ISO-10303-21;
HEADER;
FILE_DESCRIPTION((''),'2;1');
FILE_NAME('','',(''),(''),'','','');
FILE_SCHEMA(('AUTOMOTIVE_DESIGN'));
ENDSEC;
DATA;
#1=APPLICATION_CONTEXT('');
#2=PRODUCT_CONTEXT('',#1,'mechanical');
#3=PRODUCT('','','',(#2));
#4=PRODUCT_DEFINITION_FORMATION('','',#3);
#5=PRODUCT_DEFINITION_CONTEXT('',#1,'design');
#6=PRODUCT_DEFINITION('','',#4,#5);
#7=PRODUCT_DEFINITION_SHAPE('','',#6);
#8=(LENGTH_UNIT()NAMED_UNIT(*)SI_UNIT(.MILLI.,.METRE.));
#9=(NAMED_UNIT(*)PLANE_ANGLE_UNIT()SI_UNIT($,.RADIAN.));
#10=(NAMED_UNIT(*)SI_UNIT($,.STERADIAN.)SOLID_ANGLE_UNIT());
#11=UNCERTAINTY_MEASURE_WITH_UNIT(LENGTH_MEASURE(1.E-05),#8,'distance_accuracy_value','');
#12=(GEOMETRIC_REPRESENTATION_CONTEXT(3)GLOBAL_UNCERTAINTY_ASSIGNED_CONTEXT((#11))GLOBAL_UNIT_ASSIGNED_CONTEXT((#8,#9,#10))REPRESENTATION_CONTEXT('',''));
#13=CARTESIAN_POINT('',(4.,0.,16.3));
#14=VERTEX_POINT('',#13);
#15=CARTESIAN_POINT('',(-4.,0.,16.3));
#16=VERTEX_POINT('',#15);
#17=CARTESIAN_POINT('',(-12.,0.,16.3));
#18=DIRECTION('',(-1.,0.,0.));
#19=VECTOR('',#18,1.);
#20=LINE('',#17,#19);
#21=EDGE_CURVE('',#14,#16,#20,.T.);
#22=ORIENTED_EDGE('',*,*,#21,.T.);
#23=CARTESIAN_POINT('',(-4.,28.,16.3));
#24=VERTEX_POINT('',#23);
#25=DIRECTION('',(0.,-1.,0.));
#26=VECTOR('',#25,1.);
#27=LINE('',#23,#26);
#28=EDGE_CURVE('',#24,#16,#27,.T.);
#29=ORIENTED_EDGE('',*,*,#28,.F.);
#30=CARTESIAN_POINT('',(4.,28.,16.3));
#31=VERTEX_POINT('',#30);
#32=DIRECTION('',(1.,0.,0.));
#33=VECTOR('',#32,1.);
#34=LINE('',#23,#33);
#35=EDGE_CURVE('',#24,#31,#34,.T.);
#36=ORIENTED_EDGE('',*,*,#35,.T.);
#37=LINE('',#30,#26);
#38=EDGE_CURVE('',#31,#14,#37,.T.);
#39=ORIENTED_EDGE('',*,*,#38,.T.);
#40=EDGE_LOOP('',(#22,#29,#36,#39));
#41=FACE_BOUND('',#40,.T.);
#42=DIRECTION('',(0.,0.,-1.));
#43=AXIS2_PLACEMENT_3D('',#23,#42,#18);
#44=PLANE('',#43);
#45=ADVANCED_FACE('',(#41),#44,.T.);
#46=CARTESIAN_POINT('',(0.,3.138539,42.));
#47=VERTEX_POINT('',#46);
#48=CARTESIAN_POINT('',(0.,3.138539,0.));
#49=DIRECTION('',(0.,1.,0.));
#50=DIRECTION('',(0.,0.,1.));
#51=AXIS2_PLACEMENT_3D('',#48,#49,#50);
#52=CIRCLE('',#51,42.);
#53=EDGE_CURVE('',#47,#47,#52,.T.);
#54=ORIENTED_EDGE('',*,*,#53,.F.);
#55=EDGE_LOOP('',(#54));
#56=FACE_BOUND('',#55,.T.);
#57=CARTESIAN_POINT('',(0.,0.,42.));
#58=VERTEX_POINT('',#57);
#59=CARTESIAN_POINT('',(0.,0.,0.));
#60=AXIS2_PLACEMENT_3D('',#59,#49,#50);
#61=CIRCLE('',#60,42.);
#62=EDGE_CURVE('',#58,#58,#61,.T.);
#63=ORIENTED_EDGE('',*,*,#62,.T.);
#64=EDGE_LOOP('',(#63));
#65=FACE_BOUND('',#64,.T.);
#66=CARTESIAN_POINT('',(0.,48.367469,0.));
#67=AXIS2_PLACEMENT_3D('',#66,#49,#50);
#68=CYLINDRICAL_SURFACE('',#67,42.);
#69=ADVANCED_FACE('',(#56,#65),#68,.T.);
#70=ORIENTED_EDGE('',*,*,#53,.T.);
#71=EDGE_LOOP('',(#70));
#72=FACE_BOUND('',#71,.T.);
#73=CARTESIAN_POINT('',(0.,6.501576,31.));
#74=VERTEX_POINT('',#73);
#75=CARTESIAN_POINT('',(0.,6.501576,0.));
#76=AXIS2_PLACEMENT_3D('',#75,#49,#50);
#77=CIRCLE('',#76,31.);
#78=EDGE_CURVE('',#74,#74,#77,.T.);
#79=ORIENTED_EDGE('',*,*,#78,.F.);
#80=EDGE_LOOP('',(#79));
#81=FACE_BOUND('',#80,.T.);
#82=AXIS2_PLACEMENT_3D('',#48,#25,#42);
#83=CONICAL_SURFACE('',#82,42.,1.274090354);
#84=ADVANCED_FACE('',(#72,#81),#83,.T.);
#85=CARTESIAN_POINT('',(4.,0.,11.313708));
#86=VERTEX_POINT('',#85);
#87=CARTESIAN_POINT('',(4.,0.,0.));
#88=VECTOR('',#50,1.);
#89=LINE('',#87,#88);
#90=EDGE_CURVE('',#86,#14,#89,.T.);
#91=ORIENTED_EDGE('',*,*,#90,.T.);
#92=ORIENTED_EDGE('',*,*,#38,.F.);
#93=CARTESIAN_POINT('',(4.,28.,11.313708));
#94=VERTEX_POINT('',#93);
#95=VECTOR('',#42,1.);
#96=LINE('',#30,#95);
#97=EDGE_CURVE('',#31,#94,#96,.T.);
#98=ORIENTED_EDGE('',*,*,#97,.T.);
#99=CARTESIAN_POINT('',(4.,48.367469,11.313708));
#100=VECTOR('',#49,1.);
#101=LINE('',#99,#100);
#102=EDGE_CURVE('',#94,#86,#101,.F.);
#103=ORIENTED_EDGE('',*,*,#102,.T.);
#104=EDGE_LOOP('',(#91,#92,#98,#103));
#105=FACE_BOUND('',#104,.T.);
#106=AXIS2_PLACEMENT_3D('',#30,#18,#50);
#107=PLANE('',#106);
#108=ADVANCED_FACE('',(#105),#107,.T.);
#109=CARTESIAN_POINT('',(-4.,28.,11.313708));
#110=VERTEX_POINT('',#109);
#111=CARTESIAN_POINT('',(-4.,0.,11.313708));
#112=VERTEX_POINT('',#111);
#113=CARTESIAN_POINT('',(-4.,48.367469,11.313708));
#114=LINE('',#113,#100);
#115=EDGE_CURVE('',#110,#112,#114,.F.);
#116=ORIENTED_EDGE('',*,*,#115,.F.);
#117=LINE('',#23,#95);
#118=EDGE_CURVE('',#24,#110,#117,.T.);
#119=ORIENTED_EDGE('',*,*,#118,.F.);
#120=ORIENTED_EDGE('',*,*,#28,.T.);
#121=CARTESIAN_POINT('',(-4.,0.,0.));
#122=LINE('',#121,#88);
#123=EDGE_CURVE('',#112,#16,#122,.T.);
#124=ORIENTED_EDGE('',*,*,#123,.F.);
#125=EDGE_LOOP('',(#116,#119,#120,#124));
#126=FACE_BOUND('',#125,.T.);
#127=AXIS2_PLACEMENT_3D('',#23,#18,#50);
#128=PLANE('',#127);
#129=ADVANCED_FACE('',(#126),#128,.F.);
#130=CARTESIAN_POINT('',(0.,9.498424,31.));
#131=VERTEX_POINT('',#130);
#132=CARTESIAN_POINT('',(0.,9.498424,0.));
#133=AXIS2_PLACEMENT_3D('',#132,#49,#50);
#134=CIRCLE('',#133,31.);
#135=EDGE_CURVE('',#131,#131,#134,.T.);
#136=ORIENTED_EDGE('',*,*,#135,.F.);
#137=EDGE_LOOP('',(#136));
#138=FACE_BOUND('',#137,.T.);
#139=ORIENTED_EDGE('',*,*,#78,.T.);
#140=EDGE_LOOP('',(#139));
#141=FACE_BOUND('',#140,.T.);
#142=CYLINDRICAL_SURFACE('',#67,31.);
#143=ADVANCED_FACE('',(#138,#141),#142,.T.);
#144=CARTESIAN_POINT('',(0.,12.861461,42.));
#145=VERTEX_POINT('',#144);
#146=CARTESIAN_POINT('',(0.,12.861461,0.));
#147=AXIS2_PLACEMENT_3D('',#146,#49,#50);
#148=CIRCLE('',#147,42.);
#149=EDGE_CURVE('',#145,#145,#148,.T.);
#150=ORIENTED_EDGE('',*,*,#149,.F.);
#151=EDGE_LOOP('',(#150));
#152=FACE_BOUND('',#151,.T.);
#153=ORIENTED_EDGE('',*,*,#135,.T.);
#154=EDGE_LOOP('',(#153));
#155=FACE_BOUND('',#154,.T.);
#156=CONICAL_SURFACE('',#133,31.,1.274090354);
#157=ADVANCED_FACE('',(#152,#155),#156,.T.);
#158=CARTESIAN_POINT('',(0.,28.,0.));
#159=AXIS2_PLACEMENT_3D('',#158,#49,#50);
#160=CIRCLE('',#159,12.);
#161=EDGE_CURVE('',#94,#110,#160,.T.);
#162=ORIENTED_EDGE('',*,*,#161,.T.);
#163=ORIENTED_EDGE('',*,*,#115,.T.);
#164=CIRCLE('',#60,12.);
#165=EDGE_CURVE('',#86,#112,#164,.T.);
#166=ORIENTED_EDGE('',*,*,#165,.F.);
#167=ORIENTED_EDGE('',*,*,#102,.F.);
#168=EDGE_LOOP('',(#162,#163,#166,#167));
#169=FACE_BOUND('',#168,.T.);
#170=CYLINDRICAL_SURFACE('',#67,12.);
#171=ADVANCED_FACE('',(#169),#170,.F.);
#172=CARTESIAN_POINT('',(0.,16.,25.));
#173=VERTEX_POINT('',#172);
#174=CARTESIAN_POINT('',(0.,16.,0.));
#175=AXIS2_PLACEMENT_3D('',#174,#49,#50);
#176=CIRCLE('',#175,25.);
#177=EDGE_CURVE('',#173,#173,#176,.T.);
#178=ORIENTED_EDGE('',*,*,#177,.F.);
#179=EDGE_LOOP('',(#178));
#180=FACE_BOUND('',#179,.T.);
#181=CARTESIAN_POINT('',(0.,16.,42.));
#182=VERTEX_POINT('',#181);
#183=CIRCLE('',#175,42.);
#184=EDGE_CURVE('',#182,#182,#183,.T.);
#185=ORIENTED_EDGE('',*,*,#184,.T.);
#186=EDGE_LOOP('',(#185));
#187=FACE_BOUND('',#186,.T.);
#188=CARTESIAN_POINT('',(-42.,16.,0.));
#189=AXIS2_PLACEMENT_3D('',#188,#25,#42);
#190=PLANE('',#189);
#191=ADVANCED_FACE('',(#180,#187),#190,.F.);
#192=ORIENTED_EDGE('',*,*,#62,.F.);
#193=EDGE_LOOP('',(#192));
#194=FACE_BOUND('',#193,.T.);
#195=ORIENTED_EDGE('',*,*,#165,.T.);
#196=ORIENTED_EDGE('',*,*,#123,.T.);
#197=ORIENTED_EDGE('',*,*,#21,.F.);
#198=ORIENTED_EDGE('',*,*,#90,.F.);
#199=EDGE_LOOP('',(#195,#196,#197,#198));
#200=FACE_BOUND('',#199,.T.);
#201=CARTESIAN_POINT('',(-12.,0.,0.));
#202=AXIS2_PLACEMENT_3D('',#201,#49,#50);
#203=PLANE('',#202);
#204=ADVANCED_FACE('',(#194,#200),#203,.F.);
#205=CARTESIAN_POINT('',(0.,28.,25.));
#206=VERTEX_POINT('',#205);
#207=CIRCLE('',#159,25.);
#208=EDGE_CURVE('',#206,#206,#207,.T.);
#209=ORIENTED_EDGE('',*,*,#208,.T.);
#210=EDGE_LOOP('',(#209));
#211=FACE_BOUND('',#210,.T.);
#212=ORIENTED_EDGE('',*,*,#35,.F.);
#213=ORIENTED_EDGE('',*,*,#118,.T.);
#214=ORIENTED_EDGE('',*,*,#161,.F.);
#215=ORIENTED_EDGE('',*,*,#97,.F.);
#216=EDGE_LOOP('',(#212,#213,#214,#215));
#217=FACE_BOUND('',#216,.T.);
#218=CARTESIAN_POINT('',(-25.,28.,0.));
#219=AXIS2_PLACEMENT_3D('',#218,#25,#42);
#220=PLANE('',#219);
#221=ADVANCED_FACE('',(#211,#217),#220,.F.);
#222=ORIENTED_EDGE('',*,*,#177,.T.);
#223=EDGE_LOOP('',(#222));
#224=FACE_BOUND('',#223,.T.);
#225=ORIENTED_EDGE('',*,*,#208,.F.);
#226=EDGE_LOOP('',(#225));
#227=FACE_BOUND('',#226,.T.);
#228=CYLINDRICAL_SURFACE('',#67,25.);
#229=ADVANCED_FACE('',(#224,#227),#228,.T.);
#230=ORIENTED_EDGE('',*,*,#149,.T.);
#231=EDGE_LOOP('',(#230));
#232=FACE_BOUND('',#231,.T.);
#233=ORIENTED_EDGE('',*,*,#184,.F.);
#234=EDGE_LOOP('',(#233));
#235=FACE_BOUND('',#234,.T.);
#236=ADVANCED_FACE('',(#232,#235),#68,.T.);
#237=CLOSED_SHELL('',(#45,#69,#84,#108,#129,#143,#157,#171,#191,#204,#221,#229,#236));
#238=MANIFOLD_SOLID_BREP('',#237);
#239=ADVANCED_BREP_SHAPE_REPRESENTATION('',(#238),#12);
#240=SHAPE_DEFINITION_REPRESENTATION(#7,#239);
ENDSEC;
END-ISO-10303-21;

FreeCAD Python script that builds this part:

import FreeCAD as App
import Part
import Sketcher

V = App.Vector
Q = App.Units.Quantity


def add_polygon(sketch, points):
    """Adds a closed chain of lines whose ends are joined by coincident constraints."""
    first, n = sketch.GeometryCount, len(points)
    for a, b in zip(points, points[1:] + points[:1]):
        sketch.addGeometry(Part.LineSegment(App.Vector(*a, 0), App.Vector(*b, 0)), False)
    for i in range(n):
        sketch.addConstraint(Sketcher.Constraint("Coincident", first + i, 2, first + (i + 1) % n, 1))

doc = App.newDocument("Part")
params = doc.addObject("Spreadsheet::Sheet", "Params")
for row, (alias, value) in enumerate([
    ("sketch1_width", "30 mm"),
    ("sketch1_width2", "13 mm"),
    ("sketch1_height", "28 mm"),
    ("sketch1_height2", "12 mm"),
    ("revolution_angle", "360 deg"),
    ("sketch2_width", "8 mm"),
    ("sketch2_height", "16.3 mm"),
], start=1):
    params.set(f"A{row}", alias)
    params.set(f"B{row}", "=" + value)
    params.setAlias(f"B{row}", alias)

body = doc.addObject("PartDesign::Body", "Body")

sketch1 = body.newObject("Sketcher::SketchObject", "Sketch")
sketch1.AttachmentSupport = (doc.getObject("XY_Plane"), [""])
sketch1.MapMode = "FlatFace"
add_polygon(sketch1, [(-42, 0), (-12, 0), (-12, 28), (-25, 28), (-25, 16), (-42, 16), (-42, 12.861461), (-31, 9.498424), (-31, 6.501576), (-42, 3.138539)])
sketch1.addConstraint([
    Sketcher.Constraint("Horizontal", 0),
    Sketcher.Constraint("Vertical", 1),
    Sketcher.Constraint("Horizontal", 2),
    Sketcher.Constraint("Vertical", 3),
    Sketcher.Constraint("Horizontal", 4),
    Sketcher.Constraint("Vertical", 5),
    Sketcher.Constraint("Vertical", 7),
    Sketcher.Constraint("Vertical", 9),
    Sketcher.Constraint("PointOnObject", 0, 2, -1),
    Sketcher.Constraint("Vertical", 5, 2, 8, 2),
    Sketcher.Constraint("Equal", 5, 9),
    Sketcher.Constraint("Equal", 6, 8),
    Sketcher.Constraint("DistanceX", 0, 1, 0, 2, Q("30 mm")),
    Sketcher.Constraint("DistanceX", 2, 2, 2, 1, Q("13 mm")),
    Sketcher.Constraint("DistanceY", 1, 1, 1, 2, Q("28 mm")),
    Sketcher.Constraint("DistanceY", 3, 2, 3, 1, Q("12 mm")),
    Sketcher.Constraint("Angle", 6, Q("-17 deg")),
    Sketcher.Constraint("DistanceX", 0, 2, -1, 1, Q("12 mm")),
    Sketcher.Constraint("DistanceX", 6, 2, -1, 1, Q("31 mm")),
    Sketcher.Constraint("DistanceY", 5, 2, 5, 1, Q("3.138539 mm")),
])
sketch1.setExpression("Constraints[22]", "Params.sketch1_width")
sketch1.setExpression("Constraints[23]", "Params.sketch1_width2")
sketch1.setExpression("Constraints[24]", "Params.sketch1_height")
sketch1.setExpression("Constraints[25]", "Params.sketch1_height2")
revolution = body.newObject("PartDesign::Revolution", "Revolution")
revolution.Profile = sketch1
revolution.ReferenceAxis = (sketch1, ["V_Axis"])
revolution.setExpression("Angle", "Params.revolution_angle")

sketch2 = body.newObject("Sketcher::SketchObject", "Sketch001")
sketch2.AttachmentSupport = (doc.getObject("XZ_Plane"), [""])
sketch2.MapMode = "FlatFace"
add_polygon(sketch2, [(-4, 0), (-4, 16.3), (4, 16.3), (4, 0)])
sketch2.addConstraint([
    Sketcher.Constraint("Vertical", 0),
    Sketcher.Constraint("Horizontal", 1),
    Sketcher.Constraint("Vertical", 2),
    Sketcher.Constraint("Horizontal", 3),
    Sketcher.Constraint("Symmetric", 2, 2, 3, 2, -1, 1),
    Sketcher.Constraint("DistanceX", 1, 1, 1, 2, Q("8 mm")),
    Sketcher.Constraint("DistanceY", 0, 1, 0, 2, Q("16.3 mm")),
])
sketch2.setExpression("Constraints[9]", "Params.sketch2_width")
sketch2.setExpression("Constraints[10]", "Params.sketch2_height")
pocket1 = body.newObject("PartDesign::Pocket", "Pocket")
pocket1.Profile = sketch2
pocket1.Type = "ThroughAll"
pocket1.Midplane = True

doc.recompute()
